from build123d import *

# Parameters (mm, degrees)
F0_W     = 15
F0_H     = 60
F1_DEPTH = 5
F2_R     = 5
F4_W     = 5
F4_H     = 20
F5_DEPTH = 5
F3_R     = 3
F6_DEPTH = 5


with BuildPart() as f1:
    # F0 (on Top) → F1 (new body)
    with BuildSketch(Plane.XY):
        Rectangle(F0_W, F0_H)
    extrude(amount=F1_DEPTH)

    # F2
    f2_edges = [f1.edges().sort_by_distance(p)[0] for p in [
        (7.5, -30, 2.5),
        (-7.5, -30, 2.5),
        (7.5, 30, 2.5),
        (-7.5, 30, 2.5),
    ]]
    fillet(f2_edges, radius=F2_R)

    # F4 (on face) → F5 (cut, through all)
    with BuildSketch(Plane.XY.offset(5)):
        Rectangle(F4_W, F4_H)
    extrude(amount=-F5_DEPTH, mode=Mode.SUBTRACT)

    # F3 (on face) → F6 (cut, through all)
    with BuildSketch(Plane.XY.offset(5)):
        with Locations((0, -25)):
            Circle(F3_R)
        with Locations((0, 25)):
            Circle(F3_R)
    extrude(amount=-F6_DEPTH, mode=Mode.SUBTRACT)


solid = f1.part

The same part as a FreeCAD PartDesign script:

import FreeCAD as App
import Part
import Sketcher
from FreeCAD import Vector


def edges_at(feature, points):
    """Names of the edges that pass closest to the given points."""
    edges = feature.Shape.Edges
    near = lambda p: min(range(len(edges)), key=lambda i: edges[i].distToShape(Part.Vertex(*p))[0])
    return sorted({f"Edge{near(p) + 1}" for p in points})

doc = App.newDocument("Part")
body = doc.addObject("PartDesign::Body", "Body")

# Sketch on XY plane
sketch1 = doc.addObject("Sketcher::SketchObject", "Sketch")
body.addObject(sketch1)
sketch1.AttachmentSupport = (doc.XY_Plane, [""])
sketch1.MapMode = "FlatFace"
sketch1.addGeometry([
    Part.LineSegment(Vector(-7.5, 30, 0), Vector(-7.5, -30, 0)),
    Part.LineSegment(Vector(-7.5, -30, 0), Vector(7.5, -30, 0)),
    Part.LineSegment(Vector(7.5, -30, 0), Vector(7.5, 30, 0)),
    Part.LineSegment(Vector(7.5, 30, 0), Vector(-7.5, 30, 0)),
], False)
sketch1.addConstraint([
    Sketcher.Constraint("Coincident", 0, 2, 1, 1),
    Sketcher.Constraint("Coincident", 1, 2, 2, 1),
    Sketcher.Constraint("Coincident", 2, 2, 3, 1),
    Sketcher.Constraint("Coincident", 3, 2, 0, 1),
    Sketcher.Constraint("Vertical", 0),
    Sketcher.Constraint("Horizontal", 1),
    Sketcher.Constraint("Vertical", 2),
    Sketcher.Constraint("Horizontal", 3),
    Sketcher.Constraint("Symmetric", 0, 2, 2, 2, -1, 1),
    Sketcher.Constraint("DistanceX", 1, 1, 1, 2, 15.0),
    Sketcher.Constraint("DistanceY", 0, 2, 0, 1, 60.0),
])
pad1 = doc.addObject("PartDesign::Pad", "Pad")
body.addObject(pad1)
pad1.Profile = sketch1
pad1.Length = 5
doc.recompute()

fillet = doc.addObject("PartDesign::Fillet", "Fillet")
body.addObject(fillet)
fillet.Base = (pad1, edges_at(pad1, [
    (7.5, -30, 2.5),
    (-7.5, -30, 2.5),
    (7.5, 30, 2.5),
    (-7.5, 30, 2.5),
]))
fillet.Radius = 5

# Sketch on XY plane
sketch2 = doc.addObject("Sketcher::SketchObject", "Sketch001")
body.addObject(sketch2)
sketch2.AttachmentSupport = (doc.XY_Plane, [""])
sketch2.MapMode = "FlatFace"
sketch2.AttachmentOffset = App.Placement(Vector(0, 0, 5), App.Rotation())
sketch2.addGeometry([
    Part.LineSegment(Vector(-2.5, 10, 0), Vector(-2.5, -10, 0)),
    Part.LineSegment(Vector(-2.5, -10, 0), Vector(2.5, -10, 0)),
    Part.LineSegment(Vector(2.5, -10, 0), Vector(2.5, 10, 0)),
    Part.LineSegment(Vector(2.5, 10, 0), Vector(-2.5, 10, 0)),
], False)
sketch2.addConstraint([
    Sketcher.Constraint("Coincident", 0, 2, 1, 1),
    Sketcher.Constraint("Coincident", 1, 2, 2, 1),
    Sketcher.Constraint("Coincident", 2, 2, 3, 1),
    Sketcher.Constraint("Coincident", 3, 2, 0, 1),
    Sketcher.Constraint("Vertical", 0),
    Sketcher.Constraint("Horizontal", 1),
    Sketcher.Constraint("Vertical", 2),
    Sketcher.Constraint("Horizontal", 3),
    Sketcher.Constraint("Symmetric", 0, 2, 2, 2, -1, 1),
    Sketcher.Constraint("DistanceX", 1, 1, 1, 2, 5.0),
    Sketcher.Constraint("DistanceY", 0, 2, 0, 1, 20.0),
])
pocket1 = doc.addObject("PartDesign::Pocket", "Pocket")
body.addObject(pocket1)
pocket1.Profile = sketch2
pocket1.Type = "ThroughAll"

# Sketch on XY plane
sketch3 = doc.addObject("Sketcher::SketchObject", "Sketch002")
body.addObject(sketch3)
sketch3.AttachmentSupport = (doc.XY_Plane, [""])
sketch3.MapMode = "FlatFace"
sketch3.AttachmentOffset = App.Placement(Vector(0, 0, 5), App.Rotation())
sketch3.addGeometry([
    Part.Circle(Vector(0, -25, 0), Vector(0, 0, 1), 3),
    Part.Circle(Vector(0, 25, 0), Vector(0, 0, 1), 3),
], False)
sketch3.addConstraint([
    Sketcher.Constraint("Equal", 0, 1),
    Sketcher.Constraint("Symmetric", 0, 3, 1, 3, -1, 1),
    Sketcher.Constraint("PointOnObject", 0, 3, -2),
    Sketcher.Constraint("Diameter", 0, 6.0),
    Sketcher.Constraint("DistanceY", 0, 3, -1, 1, 25.0),
])
pocket2 = doc.addObject("PartDesign::Pocket", "Pocket001")
body.addObject(pocket2)
pocket2.Profile = sketch3
pocket2.Type = "ThroughAll"

doc.recompute()
